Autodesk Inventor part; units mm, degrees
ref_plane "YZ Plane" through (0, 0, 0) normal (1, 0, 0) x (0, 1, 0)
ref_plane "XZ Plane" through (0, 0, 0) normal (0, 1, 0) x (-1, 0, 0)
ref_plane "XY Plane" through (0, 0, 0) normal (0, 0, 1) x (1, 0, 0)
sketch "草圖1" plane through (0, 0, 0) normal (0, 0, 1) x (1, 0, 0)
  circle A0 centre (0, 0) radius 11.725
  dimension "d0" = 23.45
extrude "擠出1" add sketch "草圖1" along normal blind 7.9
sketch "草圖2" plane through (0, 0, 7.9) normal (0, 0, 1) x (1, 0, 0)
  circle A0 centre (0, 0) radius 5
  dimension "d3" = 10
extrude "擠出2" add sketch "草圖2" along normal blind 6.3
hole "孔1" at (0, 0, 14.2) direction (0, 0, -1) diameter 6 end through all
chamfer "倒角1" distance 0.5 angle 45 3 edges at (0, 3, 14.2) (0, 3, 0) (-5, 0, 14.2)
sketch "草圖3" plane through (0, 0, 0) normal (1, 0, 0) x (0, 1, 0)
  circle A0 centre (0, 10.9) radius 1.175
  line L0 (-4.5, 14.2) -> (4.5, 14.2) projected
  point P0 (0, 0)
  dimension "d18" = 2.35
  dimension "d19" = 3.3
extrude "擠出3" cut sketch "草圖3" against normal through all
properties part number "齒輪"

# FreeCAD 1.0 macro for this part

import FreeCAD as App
import Part
import Sketcher
Q = App.Units.Quantity


def edges_at(feature, points):
    """Names of the edges that pass closest to the given points."""
    edges = feature.Shape.Edges
    near = lambda p: min(range(len(edges)), key=lambda i: edges[i].distToShape(Part.Vertex(*p))[0])
    return sorted({f"Edge{near(p) + 1}" for p in points})

doc = App.newDocument("Part")
params = doc.addObject("Spreadsheet::Sheet", "Params")
for row, (alias, value) in enumerate([
    ("sketch1_diameter", "23.45 mm"),
    ("pad1_length", "7.9 mm"),
    ("sketch2_diameter", "10 mm"),
    ("pad2_length", "6.3 mm"),
    ("sketch3_diameter", "6 mm"),
    ("hole_diameter", "6 mm"),
    ("chamfer_size", "0.5 mm"),
    ("sketch4_diameter", "2.35 mm"),
], start=1):
    params.set(f"A{row}", alias)
    params.set(f"B{row}", "=" + value)
    params.setAlias(f"B{row}", alias)

body = doc.addObject("PartDesign::Body", "Body")

# Sketch on XY plane
sketch1 = body.newObject("Sketcher::SketchObject", "Sketch")
sketch1.AttachmentSupport = (doc.getObject("XY_Plane"), [""])
sketch1.MapMode = "FlatFace"
sketch1.addGeometry(Part.Circle(App.Vector(0, 0, 0), App.Vector(0, 0, 1), 12), False)
sketch1.addConstraint([
    Sketcher.Constraint("Coincident", 0, 3, -1, 1),
    Sketcher.Constraint("Diameter", 0, Q("23.45 mm")),
])
sketch1.setExpression("Constraints[1]", "Params.sketch1_diameter")
pad1 = body.newObject("PartDesign::Pad", "Pad")
pad1.Profile = sketch1
pad1.setExpression("Length", "Params.pad1_length")

# Sketch on XY plane
sketch2 = body.newObject("Sketcher::SketchObject", "Sketch001")
sketch2.AttachmentSupport = (doc.getObject("XY_Plane"), [""])
sketch2.MapMode = "FlatFace"
sketch2.AttachmentOffset = App.Placement(App.Vector(0, 0, 7.9), App.Rotation())
sketch2.addGeometry(Part.Circle(App.Vector(0, 0, 0), App.Vector(0, 0, 1), 5), False)
sketch2.addConstraint([
    Sketcher.Constraint("Coincident", 0, 3, -1, 1),
    Sketcher.Constraint("Diameter", 0, Q("10 mm")),
])
sketch2.setExpression("Constraints[1]", "Params.sketch2_diameter")
pad2 = body.newObject("PartDesign::Pad", "Pad001")
pad2.Profile = sketch2
pad2.setExpression("Length", "Params.pad2_length")

# Sketch on XY plane
sketch3 = body.newObject("Sketcher::SketchObject", "Sketch002")
sketch3.AttachmentSupport = (doc.getObject("XY_Plane"), [""])
sketch3.MapMode = "FlatFace"
sketch3.AttachmentOffset = App.Placement(App.Vector(0, 0, 14.2), App.Rotation())
sketch3.addGeometry(Part.Circle(App.Vector(0, 0, 0), App.Vector(0, 0, 1), 3), False)
sketch3.addConstraint([
    Sketcher.Constraint("Coincident", 0, 3, -1, 1),
    Sketcher.Constraint("Diameter", 0, Q("6 mm")),
])
sketch3.setExpression("Constraints[1]", "Params.sketch3_diameter")
doc.recompute()
hole = body.newObject("PartDesign::Hole", "Hole")
hole.Profile = sketch3
hole.ThreadType = "None"
hole.setExpression("Diameter", "Params.hole_diameter")
hole.DepthType = "ThroughAll"
doc.recompute()

chamfer = body.newObject("PartDesign::Chamfer", "Chamfer")
chamfer.Base = (hole, edges_at(hole, [(0, 3, 14.2), (0, 3, 0), (-5, 0, 14.2)]))
chamfer.setExpression("Size", "Params.chamfer_size")

# Sketch on YZ plane
sketch4 = body.newObject("Sketcher::SketchObject", "Sketch003")
sketch4.AttachmentSupport = (doc.getObject("YZ_Plane"), [""])
sketch4.MapMode = "FlatFace"
sketch4.addGeometry(Part.Circle(App.Vector(0, 10.9, 0), App.Vector(0, 0, 1), 1.2), False)
sketch4.addConstraint([
    Sketcher.Constraint("PointOnObject", 0, 3, -2),
    Sketcher.Constraint("Diameter", 0, Q("2.35 mm")),
    Sketcher.Constraint("DistanceY", -1, 1, 0, 3, Q("10.9 mm")),
])
sketch4.setExpression("Constraints[1]", "Params.sketch4_diameter")
pocket1 = body.newObject("PartDesign::Pocket", "Pocket")
pocket1.Profile = sketch4
pocket1.Type = "ThroughAll"

doc.recompute()
